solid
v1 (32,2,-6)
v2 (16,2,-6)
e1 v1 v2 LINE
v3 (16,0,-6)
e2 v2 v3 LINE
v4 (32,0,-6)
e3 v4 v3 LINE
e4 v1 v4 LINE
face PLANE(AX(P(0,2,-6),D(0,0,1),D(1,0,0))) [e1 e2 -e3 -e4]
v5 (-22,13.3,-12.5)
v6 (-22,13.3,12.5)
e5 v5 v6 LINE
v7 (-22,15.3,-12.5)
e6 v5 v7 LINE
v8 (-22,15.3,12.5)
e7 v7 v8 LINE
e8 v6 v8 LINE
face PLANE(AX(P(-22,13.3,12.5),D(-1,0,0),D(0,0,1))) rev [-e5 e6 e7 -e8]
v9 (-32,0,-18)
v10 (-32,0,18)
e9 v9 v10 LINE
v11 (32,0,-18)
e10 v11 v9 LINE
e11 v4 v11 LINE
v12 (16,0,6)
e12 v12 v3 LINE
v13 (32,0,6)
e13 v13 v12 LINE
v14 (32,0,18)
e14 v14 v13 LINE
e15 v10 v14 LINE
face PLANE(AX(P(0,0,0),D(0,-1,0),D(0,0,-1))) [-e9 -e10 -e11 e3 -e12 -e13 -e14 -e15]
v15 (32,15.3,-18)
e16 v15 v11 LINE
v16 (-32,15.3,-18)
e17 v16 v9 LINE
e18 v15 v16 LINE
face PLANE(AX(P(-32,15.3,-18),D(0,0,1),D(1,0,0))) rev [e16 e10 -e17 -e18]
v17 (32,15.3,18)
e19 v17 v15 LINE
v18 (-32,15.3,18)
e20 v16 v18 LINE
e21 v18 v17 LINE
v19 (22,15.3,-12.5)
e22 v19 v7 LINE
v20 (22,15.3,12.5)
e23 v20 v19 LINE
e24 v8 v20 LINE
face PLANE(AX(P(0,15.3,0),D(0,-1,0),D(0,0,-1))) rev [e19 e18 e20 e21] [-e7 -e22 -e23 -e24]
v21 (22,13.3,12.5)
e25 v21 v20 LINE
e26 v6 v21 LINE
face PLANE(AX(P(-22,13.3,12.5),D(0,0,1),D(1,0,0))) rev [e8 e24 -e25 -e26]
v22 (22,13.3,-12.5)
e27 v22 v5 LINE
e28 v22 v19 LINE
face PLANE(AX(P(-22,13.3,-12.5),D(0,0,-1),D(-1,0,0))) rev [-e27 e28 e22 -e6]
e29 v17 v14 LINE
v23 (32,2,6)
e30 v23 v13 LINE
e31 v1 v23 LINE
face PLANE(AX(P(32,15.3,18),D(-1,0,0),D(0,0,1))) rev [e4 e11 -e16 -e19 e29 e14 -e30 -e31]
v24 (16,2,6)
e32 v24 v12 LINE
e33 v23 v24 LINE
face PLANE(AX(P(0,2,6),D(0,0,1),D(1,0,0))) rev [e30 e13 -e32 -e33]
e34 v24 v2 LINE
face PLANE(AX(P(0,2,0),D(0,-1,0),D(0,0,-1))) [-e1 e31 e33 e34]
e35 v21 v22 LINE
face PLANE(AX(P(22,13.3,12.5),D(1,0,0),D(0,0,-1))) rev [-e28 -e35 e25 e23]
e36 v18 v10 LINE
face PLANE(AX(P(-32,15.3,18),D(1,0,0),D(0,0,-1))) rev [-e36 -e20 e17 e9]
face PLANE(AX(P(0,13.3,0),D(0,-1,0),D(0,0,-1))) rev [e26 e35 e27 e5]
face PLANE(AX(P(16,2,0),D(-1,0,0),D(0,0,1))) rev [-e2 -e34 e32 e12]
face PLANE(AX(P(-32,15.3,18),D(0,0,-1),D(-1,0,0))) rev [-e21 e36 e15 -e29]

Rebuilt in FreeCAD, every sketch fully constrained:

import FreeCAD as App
import Part
import Sketcher


def add_polygon(sketch, points):
    """Adds a closed chain of lines whose ends are joined by coincident constraints."""
    first, n = sketch.GeometryCount, len(points)
    for a, b in zip(points, points[1:] + points[:1]):
        sketch.addGeometry(Part.LineSegment(App.Vector(*a, 0), App.Vector(*b, 0)), False)
    for i in range(n):
        sketch.addConstraint(Sketcher.Constraint("Coincident", first + i, 2, first + (i + 1) % n, 1))

doc = App.newDocument("Part")
body = doc.addObject("PartDesign::Body", "Body")

# Sketch on XZ plane
sketch1 = body.newObject("Sketcher::SketchObject", "Sketch")
sketch1.AttachmentSupport = (doc.getObject("XZ_Plane"), [""])
sketch1.MapMode = "FlatFace"
add_polygon(sketch1, [(-32, -18), (-32, 18), (32, 18), (32, -18)])  # lines 0-3
sketch1.addConstraint(Sketcher.Constraint("Vertical", 0))
sketch1.addConstraint(Sketcher.Constraint("Horizontal", 1))
sketch1.addConstraint(Sketcher.Constraint("Vertical", 2))
sketch1.addConstraint(Sketcher.Constraint("Horizontal", 3))
sketch1.addConstraint(Sketcher.Constraint("Symmetric", 0, 2, 2, 2, -1, 1))
sketch1.addConstraint(Sketcher.Constraint("DistanceX", 1, 1, 1, 2, 64.0))
sketch1.addConstraint(Sketcher.Constraint("DistanceY", 0, 1, 0, 2, 36.0))
pad1 = body.newObject("PartDesign::Pad", "Pad")
pad1.Profile = sketch1
pad1.Length = 15.3
pad1.Reversed = True

# Sketch on XZ plane
sketch2 = body.newObject("Sketcher::SketchObject", "Sketch001")
sketch2.AttachmentSupport = (doc.getObject("XZ_Plane"), [""])
sketch2.MapMode = "FlatFace"
sketch2.AttachmentOffset = App.Placement(App.Vector(0, 0, -15.3), App.Rotation())
add_polygon(sketch2, [(-22, -12), (-22, 12), (22, 12), (22, -12)])  # lines 0-3
sketch2.addConstraint(Sketcher.Constraint("Vertical", 0))
sketch2.addConstraint(Sketcher.Constraint("Horizontal", 1))
sketch2.addConstraint(Sketcher.Constraint("Vertical", 2))
sketch2.addConstraint(Sketcher.Constraint("Horizontal", 3))
sketch2.addConstraint(Sketcher.Constraint("Symmetric", 0, 2, 2, 2, -1, 1))
sketch2.addConstraint(Sketcher.Constraint("DistanceX", 1, 1, 1, 2, 44.0))
sketch2.addConstraint(Sketcher.Constraint("DistanceY", 0, 1, 0, 2, 25.0))
pocket1 = body.newObject("PartDesign::Pocket", "Pocket")
pocket1.Profile = sketch2
pocket1.Length = 2
pocket1.Reversed = True

# Sketch on XZ plane
sketch3 = body.newObject("Sketcher::SketchObject", "Sketch002")
sketch3.AttachmentSupport = (doc.getObject("XZ_Plane"), [""])
sketch3.MapMode = "FlatFace"
add_polygon(sketch3, [(16, -6), (32, -6), (32, 6), (16, 6)])  # lines 0-3
sketch3.addConstraint(Sketcher.Constraint("Horizontal", 0))
sketch3.addConstraint(Sketcher.Constraint("Vertical", 1))
sketch3.addConstraint(Sketcher.Constraint("Horizontal", 2))
sketch3.addConstraint(Sketcher.Constraint("Vertical", 3))
sketch3.addConstraint(Sketcher.Constraint("DistanceX", 0, 1, 0, 2, 16.0))
sketch3.addConstraint(Sketcher.Constraint("DistanceY", 1, 1, 1, 2, 12.0))
sketch3.addConstraint(Sketcher.Constraint("DistanceX", -1, 1, 0, 2, 32.0))
sketch3.addConstraint(Sketcher.Constraint("DistanceY", 0, 2, -1, 1, 6.0))
pocket2 = body.newObject("PartDesign::Pocket", "Pocket001")
pocket2.Profile = sketch3
pocket2.Length = 2

doc.recompute()
